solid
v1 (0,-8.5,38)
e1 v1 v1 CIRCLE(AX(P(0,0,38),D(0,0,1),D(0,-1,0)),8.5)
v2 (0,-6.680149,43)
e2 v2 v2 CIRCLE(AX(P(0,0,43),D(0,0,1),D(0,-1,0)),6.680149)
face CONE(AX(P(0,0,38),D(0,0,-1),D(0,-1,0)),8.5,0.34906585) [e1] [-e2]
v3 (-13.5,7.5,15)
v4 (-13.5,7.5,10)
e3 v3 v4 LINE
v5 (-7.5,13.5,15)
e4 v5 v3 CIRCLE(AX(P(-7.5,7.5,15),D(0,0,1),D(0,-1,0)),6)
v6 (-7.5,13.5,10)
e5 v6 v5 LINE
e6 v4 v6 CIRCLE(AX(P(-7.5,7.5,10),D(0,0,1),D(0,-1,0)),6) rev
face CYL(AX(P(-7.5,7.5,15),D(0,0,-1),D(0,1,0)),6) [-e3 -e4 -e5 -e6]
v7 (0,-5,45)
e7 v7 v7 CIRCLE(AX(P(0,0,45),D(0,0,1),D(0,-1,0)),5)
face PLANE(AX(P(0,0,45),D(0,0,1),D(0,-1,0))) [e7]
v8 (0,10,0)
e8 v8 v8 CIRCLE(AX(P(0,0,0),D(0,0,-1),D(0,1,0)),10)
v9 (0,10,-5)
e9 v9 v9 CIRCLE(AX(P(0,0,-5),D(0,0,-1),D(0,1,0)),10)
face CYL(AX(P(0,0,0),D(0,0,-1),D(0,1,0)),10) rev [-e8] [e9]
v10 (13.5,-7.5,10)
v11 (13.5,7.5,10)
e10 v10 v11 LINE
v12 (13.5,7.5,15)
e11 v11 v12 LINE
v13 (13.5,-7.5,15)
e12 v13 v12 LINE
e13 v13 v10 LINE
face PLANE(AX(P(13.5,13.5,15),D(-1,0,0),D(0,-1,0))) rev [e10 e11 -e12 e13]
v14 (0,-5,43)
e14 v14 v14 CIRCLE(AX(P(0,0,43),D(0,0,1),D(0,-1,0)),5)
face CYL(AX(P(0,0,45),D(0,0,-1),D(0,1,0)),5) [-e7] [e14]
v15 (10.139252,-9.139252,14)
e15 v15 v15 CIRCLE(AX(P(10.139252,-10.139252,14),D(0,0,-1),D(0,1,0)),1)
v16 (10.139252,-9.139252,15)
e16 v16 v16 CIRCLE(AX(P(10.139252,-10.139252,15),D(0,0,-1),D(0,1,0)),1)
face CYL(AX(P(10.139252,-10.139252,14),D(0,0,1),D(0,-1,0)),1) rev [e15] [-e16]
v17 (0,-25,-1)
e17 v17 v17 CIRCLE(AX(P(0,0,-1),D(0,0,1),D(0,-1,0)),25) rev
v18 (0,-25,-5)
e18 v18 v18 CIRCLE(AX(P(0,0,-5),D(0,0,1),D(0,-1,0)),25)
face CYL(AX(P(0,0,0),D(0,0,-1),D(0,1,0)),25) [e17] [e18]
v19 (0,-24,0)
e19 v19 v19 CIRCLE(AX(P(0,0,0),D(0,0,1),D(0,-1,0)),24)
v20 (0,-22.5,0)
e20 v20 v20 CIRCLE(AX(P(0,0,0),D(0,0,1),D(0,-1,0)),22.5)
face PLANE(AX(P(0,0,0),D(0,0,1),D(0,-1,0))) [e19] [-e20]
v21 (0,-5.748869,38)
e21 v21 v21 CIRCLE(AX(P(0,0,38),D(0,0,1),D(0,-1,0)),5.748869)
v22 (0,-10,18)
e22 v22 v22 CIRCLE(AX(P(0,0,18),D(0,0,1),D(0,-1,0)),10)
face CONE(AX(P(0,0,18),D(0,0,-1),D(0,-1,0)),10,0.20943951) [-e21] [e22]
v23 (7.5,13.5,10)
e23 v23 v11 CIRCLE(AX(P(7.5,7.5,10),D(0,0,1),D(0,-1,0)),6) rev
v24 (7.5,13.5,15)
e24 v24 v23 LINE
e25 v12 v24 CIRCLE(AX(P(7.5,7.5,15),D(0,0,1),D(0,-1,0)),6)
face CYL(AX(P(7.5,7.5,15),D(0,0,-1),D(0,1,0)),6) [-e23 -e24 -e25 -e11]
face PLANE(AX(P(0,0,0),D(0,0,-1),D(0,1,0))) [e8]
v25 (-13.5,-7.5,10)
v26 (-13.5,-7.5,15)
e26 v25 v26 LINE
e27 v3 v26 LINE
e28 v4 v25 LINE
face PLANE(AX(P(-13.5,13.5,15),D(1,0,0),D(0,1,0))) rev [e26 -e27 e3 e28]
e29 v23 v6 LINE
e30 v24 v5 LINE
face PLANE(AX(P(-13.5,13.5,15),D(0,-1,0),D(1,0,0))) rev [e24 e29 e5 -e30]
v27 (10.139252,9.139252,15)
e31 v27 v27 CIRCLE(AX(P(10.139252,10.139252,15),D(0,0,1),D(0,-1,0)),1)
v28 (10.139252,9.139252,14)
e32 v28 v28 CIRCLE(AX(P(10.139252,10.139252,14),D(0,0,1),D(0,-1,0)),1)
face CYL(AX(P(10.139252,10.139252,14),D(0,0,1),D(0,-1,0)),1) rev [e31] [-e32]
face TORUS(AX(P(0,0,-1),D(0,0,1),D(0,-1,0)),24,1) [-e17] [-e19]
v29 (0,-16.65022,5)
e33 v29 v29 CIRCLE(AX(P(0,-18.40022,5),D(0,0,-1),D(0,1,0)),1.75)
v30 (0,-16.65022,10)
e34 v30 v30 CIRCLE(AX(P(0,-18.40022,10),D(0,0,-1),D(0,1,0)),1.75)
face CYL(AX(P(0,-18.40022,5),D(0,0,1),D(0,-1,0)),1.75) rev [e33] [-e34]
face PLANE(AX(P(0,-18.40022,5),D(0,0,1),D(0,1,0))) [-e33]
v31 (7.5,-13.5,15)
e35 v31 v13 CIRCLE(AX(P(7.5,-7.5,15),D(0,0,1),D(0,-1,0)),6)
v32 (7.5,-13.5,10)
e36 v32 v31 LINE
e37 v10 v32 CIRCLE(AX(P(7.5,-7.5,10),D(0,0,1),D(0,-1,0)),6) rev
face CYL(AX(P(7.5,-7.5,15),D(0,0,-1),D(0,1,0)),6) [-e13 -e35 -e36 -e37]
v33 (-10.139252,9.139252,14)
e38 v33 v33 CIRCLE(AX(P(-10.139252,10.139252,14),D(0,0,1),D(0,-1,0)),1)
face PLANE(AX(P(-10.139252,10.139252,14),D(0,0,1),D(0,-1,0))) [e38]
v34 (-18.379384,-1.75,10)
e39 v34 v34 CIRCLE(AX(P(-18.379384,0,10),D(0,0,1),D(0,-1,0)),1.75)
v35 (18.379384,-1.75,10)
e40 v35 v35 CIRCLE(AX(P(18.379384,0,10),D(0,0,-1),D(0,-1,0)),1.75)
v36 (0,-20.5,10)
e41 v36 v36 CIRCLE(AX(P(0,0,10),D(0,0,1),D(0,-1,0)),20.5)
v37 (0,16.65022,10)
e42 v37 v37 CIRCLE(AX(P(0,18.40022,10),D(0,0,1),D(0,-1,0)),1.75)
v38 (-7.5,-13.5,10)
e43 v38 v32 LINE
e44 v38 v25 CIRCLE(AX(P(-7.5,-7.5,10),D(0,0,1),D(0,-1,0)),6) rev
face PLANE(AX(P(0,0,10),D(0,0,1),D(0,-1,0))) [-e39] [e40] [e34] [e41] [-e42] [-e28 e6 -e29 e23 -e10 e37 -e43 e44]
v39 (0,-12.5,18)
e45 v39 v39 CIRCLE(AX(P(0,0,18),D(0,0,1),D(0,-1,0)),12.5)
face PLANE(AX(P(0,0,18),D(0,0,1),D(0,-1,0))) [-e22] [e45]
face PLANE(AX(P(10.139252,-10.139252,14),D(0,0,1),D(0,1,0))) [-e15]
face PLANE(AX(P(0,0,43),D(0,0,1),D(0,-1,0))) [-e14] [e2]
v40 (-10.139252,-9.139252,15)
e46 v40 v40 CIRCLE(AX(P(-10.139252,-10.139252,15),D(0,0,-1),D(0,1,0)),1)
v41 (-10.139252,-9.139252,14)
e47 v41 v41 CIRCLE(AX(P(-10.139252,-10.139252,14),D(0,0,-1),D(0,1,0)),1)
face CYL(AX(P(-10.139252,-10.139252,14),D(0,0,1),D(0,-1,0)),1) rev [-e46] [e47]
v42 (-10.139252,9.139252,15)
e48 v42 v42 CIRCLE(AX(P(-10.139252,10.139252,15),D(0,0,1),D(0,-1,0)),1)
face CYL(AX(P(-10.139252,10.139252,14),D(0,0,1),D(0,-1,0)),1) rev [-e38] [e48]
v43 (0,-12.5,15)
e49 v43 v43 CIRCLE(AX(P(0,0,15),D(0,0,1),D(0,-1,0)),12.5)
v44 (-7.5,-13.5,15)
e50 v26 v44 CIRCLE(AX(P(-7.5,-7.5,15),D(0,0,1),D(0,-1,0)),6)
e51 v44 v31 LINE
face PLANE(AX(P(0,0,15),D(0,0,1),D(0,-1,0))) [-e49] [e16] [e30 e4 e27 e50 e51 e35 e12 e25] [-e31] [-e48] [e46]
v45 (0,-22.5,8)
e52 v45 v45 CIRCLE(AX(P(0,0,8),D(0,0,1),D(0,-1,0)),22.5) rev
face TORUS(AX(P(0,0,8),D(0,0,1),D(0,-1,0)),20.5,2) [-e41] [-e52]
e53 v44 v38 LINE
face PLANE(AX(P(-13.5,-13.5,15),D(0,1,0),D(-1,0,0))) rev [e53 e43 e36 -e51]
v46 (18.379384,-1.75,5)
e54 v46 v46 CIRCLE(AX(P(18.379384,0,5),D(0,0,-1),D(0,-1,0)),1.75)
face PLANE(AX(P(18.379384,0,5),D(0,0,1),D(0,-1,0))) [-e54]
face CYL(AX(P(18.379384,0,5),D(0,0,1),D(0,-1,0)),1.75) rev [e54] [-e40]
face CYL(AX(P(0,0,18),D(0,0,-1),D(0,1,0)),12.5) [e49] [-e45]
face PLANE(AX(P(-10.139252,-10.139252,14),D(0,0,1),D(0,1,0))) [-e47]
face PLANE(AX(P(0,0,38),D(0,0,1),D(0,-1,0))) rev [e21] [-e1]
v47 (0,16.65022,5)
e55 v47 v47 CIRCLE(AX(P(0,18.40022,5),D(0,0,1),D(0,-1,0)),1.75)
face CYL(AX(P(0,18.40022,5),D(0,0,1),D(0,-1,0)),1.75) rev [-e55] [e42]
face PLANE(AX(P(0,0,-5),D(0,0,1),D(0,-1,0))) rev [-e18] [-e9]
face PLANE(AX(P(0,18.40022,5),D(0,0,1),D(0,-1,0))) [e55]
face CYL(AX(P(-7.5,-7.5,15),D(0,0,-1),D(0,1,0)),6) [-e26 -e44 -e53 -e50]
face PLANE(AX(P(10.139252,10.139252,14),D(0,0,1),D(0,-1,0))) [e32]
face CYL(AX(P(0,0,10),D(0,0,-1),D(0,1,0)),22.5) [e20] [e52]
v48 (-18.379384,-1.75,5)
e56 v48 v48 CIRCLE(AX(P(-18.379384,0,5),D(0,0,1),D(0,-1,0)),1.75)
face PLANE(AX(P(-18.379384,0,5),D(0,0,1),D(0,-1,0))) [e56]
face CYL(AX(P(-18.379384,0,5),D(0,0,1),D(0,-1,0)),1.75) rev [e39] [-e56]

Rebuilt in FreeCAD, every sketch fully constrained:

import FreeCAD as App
import Part
import Sketcher
from FreeCAD import Vector
Q = App.Units.Quantity


def edges_at(feature, points):
    """Names of the edges that pass closest to the given points."""
    edges = feature.Shape.Edges
    near = lambda p: min(range(len(edges)), key=lambda i: edges[i].distToShape(Part.Vertex(*p))[0])
    return sorted({f"Edge{near(p) + 1}" for p in points})

doc = App.newDocument("Part")
body = doc.addObject("PartDesign::Body", "Body")

sketch1 = body.newObject("Sketcher::SketchObject", "Sketch")
sketch1.AttachmentSupport = (doc.getObject("XZ_Plane"), [""])
sketch1.MapMode = "FlatFace"
sketch1.addGeometry(Part.Circle(Vector(0, 0, 0), Vector(0, 0, 1), 25), False)
sketch1.addConstraint([
    Sketcher.Constraint("Coincident", 0, 3, -1, 1),
    Sketcher.Constraint("Diameter", 0, Q("50 mm")),
])
pad1 = body.newObject("PartDesign::Pad", "Pad")
pad1.Profile = sketch1
pad1.Length = 5
pad1.Reversed = True

sketch2 = body.newObject("Sketcher::SketchObject", "Sketch001")
sketch2.AttachmentSupport = (doc.getObject("XZ_Plane"), [""])
sketch2.MapMode = "FlatFace"
sketch2.AttachmentOffset = App.Placement(Vector(0, 0, -5), App.Rotation())
sketch2.addGeometry(Part.Circle(Vector(0, 0, 0), Vector(0, 0, 1), 22), False)
sketch2.addConstraint([
    Sketcher.Constraint("Coincident", 0, 3, -1, 1),
    Sketcher.Constraint("Diameter", 0, Q("45 mm")),
])
pad2 = body.newObject("PartDesign::Pad", "Pad001")
pad2.Profile = sketch2
pad2.Length = 10
pad2.Reversed = True

sketch3 = body.newObject("Sketcher::SketchObject", "Sketch002")
sketch3.AttachmentSupport = (doc.getObject("XZ_Plane"), [""])
sketch3.MapMode = "FlatFace"
sketch3.AttachmentOffset = App.Placement(Vector(0, 0, -15), App.Rotation())
sketch3.addGeometry([
    Part.LineSegment(Vector(-14, -14, 0), Vector(-14, 14, 0)),
    Part.LineSegment(Vector(-14, 14, 0), Vector(14, 14, 0)),
    Part.LineSegment(Vector(14, 14, 0), Vector(14, -14, 0)),
    Part.LineSegment(Vector(14, -14, 0), Vector(-14, -14, 0)),
], False)
sketch3.addConstraint([
    Sketcher.Constraint("Coincident", 0, 2, 1, 1),
    Sketcher.Constraint("Coincident", 1, 2, 2, 1),
    Sketcher.Constraint("Coincident", 2, 2, 3, 1),
    Sketcher.Constraint("Coincident", 3, 2, 0, 1),
    Sketcher.Constraint("Vertical", 0),
    Sketcher.Constraint("Horizontal", 1),
    Sketcher.Constraint("Vertical", 2),
    Sketcher.Constraint("Horizontal", 3),
    Sketcher.Constraint("Symmetric", 0, 2, 2, 2, -1, 1),
    Sketcher.Constraint("Equal", 3, 0),
    Sketcher.Constraint("DistanceX", 1, 1, 1, 2, Q("27 mm")),
])
pad3 = body.newObject("PartDesign::Pad", "Pad002")
pad3.Profile = sketch3
pad3.Length = 5
pad3.Reversed = True

sketch4 = body.newObject("Sketcher::SketchObject", "Sketch003")
sketch4.AttachmentSupport = (doc.getObject("XZ_Plane"), [""])
sketch4.MapMode = "FlatFace"
sketch4.AttachmentOffset = App.Placement(Vector(0, 0, -20), App.Rotation())
sketch4.addGeometry(Part.Circle(Vector(0, 0, 0), Vector(0, 0, 1), 12), False)
sketch4.addConstraint([
    Sketcher.Constraint("Coincident", 0, 3, -1, 1),
    Sketcher.Constraint("Diameter", 0, Q("25 mm")),
])
pad4 = body.newObject("PartDesign::Pad", "Pad003")
pad4.Profile = sketch4
pad4.Length = 3
pad4.Reversed = True

sketch5 = body.newObject("Sketcher::SketchObject", "Sketch004")
sketch5.AttachmentSupport = (doc.getObject("XZ_Plane"), [""])
sketch5.MapMode = "FlatFace"
sketch5.AttachmentOffset = App.Placement(Vector(0, 0, -23), App.Rotation())
sketch5.addGeometry(Part.Circle(Vector(0, 0, 0), Vector(0, 0, 1), 10), False)
sketch5.addConstraint([
    Sketcher.Constraint("Coincident", 0, 3, -1, 1),
    Sketcher.Constraint("Diameter", 0, Q("20 mm")),
])
pad5 = body.newObject("PartDesign::Pad", "Pad004")
pad5.Profile = sketch5
pad5.Length = 20
pad5.Reversed = True
pad5.TaperAngle = -12

sketch6 = body.newObject("Sketcher::SketchObject", "Sketch005")
sketch6.AttachmentSupport = (doc.getObject("XZ_Plane"), [""])
sketch6.MapMode = "FlatFace"
sketch6.AttachmentOffset = App.Placement(Vector(0, 0, -43), App.Rotation())
sketch6.addGeometry(Part.Circle(Vector(0, 0, 0), Vector(0, 0, 1), 8), False)
sketch6.addConstraint([
    Sketcher.Constraint("Coincident", 0, 3, -1, 1),
    Sketcher.Constraint("Diameter", 0, Q("17 mm")),
])
pad6 = body.newObject("PartDesign::Pad", "Pad005")
pad6.Profile = sketch6
pad6.Length = 5
pad6.Reversed = True
pad6.TaperAngle = -20

sketch7 = body.newObject("Sketcher::SketchObject", "Sketch006")
sketch7.AttachmentSupport = (doc.getObject("XZ_Plane"), [""])
sketch7.MapMode = "FlatFace"
sketch7.AttachmentOffset = App.Placement(Vector(0, 0, -48), App.Rotation())
sketch7.addGeometry(Part.Circle(Vector(0, 0, 0), Vector(0, 0, 1), 5), False)
sketch7.addConstraint([
    Sketcher.Constraint("Coincident", 0, 3, -1, 1),
    Sketcher.Constraint("Diameter", 0, Q("10 mm")),
])
pad7 = body.newObject("PartDesign::Pad", "Pad006")
pad7.Profile = sketch7
pad7.Length = 2
pad7.Reversed = True
doc.recompute()

fillet = body.newObject("PartDesign::Fillet", "Fillet")
fillet.Base = (pad7, edges_at(pad7, [
    (13.5, 17.5, 13.5),
    (13.5, 17.5, -13.5),
    (-13.5, 17.5, -13.5),
    (-13.5, 17.5, 13.5),
]))
fillet.Radius = 6

sketch8 = body.newObject("Sketcher::SketchObject", "Sketch007")
sketch8.AttachmentSupport = (doc.getObject("XZ_Plane"), [""])
sketch8.MapMode = "FlatFace"
sketch8.AttachmentOffset = App.Placement(Vector(0, 0, -15), App.Rotation())
sketch8.addGeometry([
    Part.Circle(Vector(-18.4, 0, 0), Vector(0, 0, 1), 1.8),
    Part.Circle(Vector(0, -18.4, 0), Vector(0, 0, 1), 1.8),
], False)
sketch8.addConstraint([
    Sketcher.Constraint("Equal", 0, 1),
    Sketcher.Constraint("PointOnObject", 0, 3, -1),
    Sketcher.Constraint("PointOnObject", 1, 3, -2),
    Sketcher.Constraint("Diameter", 0, Q("3.5 mm")),
    Sketcher.Constraint("DistanceY", 1, 3, -1, 1, Q("18.40022 mm")),
    Sketcher.Constraint("DistanceX", 0, 3, -1, 1, Q("18.379384 mm")),
])
pocket1 = body.newObject("PartDesign::Pocket", "Pocket")
pocket1.Profile = sketch8
pocket1.Length = 5
pocket1.Reversed = True

sketch9 = body.newObject("Sketcher::SketchObject", "Sketch008")
sketch9.AttachmentSupport = (doc.getObject("XZ_Plane"), [""])
sketch9.MapMode = "FlatFace"
sketch9.AttachmentOffset = App.Placement(Vector(0, 0, -20), App.Rotation())
sketch9.addGeometry([
    Part.Circle(Vector(10.1, -10.1, 0), Vector(0, 0, 1), 1),
    Part.Circle(Vector(-10.1, -10.1, 0), Vector(0, 0, 1), 1),
], False)
sketch9.addConstraint([
    Sketcher.Constraint("Equal", 0, 1),
    Sketcher.Constraint("Symmetric", 0, 3, 1, 3, -2),
    Sketcher.Constraint("Diameter", 0, Q("2 mm")),
    Sketcher.Constraint("DistanceX", -1, 1, 0, 3, Q("10.139252 mm")),
    Sketcher.Constraint("DistanceY", 0, 3, -1, 1, Q("10.139252 mm")),
])
pocket2 = body.newObject("PartDesign::Pocket", "Pocket001")
pocket2.Profile = sketch9
pocket2.Length = 1
pocket2.Reversed = True
doc.recompute()

mirrored = body.newObject("PartDesign::Mirrored", "Mirrored")
mirrored.Originals = [pocket1, pocket2]
mirrored.MirrorPlane = (doc.getObject("XY_Plane"), [""])
body.Tip = mirrored
doc.recompute()

mirrored2 = body.newObject("PartDesign::Mirrored", "Mirrored001")
mirrored2.Originals = [pocket1]
mirrored2.MirrorPlane = (doc.getObject("YZ_Plane"), [""])
body.Tip = mirrored2

sketch10 = body.newObject("Sketcher::SketchObject", "Sketch009")
sketch10.AttachmentSupport = (doc.getObject("XZ_Plane"), [""])
sketch10.MapMode = "FlatFace"
sketch10.addGeometry(Part.Circle(Vector(0, 0, 0), Vector(0, 0, 1), 10), False)
sketch10.addConstraint([
    Sketcher.Constraint("Coincident", 0, 3, -1, 1),
    Sketcher.Constraint("Diameter", 0, Q("20 mm")),
])
pocket3 = body.newObject("PartDesign::Pocket", "Pocket002")
pocket3.Profile = sketch10
pocket3.Length = 5
doc.recompute()

fillet2 = body.newObject("PartDesign::Fillet", "Fillet001")
fillet2.Base = (pocket3, edges_at(pocket3, [(-22.5, 15, 0)]))
fillet2.Radius = 2
doc.recompute()

fillet3 = body.newObject("PartDesign::Fillet", "Fillet002")
fillet3.Base = (fillet2, edges_at(fillet2, [(-25, 5, 0)]))
fillet3.Radius = 1
body2 = doc.addObject("PartDesign::Body", "Body001")
doc.recompute()

body.Placement = App.Placement(Vector(0, -5, 0), App.Rotation(Vector(0, 0, 1), 0))
boolean = body2.newObject("PartDesign::Boolean", "Boolean")
boolean.Type = "Fuse"
boolean.addObjects([body])
body3 = doc.addObject("PartDesign::Body", "Body002")
doc.recompute()

body2.Placement = App.Placement(Vector(0, 0, 0), App.Rotation(Vector(1, 0, 0), 90))
boolean2 = body3.newObject("PartDesign::Boolean", "Boolean001")
boolean2.Type = "Fuse"
boolean2.addObjects([body2])

doc.recompute()
